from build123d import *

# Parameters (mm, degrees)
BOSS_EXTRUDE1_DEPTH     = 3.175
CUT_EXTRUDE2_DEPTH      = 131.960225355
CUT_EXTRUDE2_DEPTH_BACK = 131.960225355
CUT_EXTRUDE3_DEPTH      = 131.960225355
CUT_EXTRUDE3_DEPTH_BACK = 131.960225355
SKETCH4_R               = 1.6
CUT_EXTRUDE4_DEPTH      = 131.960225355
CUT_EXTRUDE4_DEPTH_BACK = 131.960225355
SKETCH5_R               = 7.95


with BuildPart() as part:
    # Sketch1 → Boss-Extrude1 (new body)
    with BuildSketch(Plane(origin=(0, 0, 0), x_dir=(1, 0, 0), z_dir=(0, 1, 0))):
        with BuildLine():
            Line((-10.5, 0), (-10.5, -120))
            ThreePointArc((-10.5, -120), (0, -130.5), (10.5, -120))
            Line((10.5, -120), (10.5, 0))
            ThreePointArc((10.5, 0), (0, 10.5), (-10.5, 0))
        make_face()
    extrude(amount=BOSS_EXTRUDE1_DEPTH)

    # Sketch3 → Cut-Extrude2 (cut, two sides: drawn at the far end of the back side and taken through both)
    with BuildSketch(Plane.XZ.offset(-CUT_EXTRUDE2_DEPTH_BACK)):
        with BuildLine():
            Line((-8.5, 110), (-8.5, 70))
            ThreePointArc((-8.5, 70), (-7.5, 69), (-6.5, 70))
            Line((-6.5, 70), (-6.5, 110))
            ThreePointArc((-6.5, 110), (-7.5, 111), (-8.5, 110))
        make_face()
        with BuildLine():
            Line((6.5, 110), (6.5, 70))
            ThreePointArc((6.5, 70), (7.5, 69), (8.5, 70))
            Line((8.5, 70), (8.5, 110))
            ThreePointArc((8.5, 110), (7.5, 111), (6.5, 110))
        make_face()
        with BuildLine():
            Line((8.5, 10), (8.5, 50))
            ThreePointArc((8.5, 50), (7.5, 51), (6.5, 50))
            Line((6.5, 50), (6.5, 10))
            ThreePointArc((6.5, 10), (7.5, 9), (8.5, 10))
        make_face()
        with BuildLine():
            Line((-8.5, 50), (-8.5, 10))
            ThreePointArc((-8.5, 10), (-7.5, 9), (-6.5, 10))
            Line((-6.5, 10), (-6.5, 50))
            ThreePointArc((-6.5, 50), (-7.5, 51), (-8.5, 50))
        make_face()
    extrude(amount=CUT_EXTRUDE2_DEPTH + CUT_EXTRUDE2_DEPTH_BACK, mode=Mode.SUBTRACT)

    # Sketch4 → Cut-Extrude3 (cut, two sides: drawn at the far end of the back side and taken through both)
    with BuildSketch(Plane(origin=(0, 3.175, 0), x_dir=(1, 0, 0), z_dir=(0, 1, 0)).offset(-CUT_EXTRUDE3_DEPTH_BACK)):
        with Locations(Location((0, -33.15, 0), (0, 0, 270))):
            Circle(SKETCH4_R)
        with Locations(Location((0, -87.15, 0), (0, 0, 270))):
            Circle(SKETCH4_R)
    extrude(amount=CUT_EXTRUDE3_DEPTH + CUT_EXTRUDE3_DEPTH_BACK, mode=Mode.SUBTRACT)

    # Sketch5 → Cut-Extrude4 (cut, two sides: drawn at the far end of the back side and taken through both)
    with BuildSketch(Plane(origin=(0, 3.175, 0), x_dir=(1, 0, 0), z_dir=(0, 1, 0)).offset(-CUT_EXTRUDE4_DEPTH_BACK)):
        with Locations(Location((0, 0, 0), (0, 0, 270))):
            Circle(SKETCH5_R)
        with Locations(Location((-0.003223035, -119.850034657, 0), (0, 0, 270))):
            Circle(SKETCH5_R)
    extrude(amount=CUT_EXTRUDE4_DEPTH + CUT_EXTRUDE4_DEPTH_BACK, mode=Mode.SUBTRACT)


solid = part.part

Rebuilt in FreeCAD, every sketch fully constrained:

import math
import FreeCAD as App
import Part
import Sketcher
from FreeCAD import Vector

doc = App.newDocument("Part")
body = doc.addObject("PartDesign::Body", "Body")

sketch1 = body.newObject("Sketcher::SketchObject", "Sketch")
sketch1.AttachmentSupport = (doc.getObject("XZ_Plane"), [""])
sketch1.MapMode = "FlatFace"
sketch1.addGeometry(Part.LineSegment(Vector(-10, 0, 0), Vector(-10, 120, 0)), False)
sketch1.addGeometry(Part.ArcOfCircle(Part.Circle(Vector(0, 120, 0), Vector(0, 0, 1), 10), math.radians(0), math.radians(180)), False)
sketch1.addGeometry(Part.LineSegment(Vector(10, 120, 0), Vector(10, 0, 0)), False)
sketch1.addGeometry(Part.ArcOfCircle(Part.Circle(Vector(0, 0, 0), Vector(0, 0, 1), 10), math.radians(180), math.radians(360)), False)
sketch1.addConstraint(Sketcher.Constraint("Tangent", 0, 2, 1, 2))
sketch1.addConstraint(Sketcher.Constraint("Tangent", 1, 1, 2, 1))
sketch1.addConstraint(Sketcher.Constraint("Tangent", 2, 2, 3, 2))
sketch1.addConstraint(Sketcher.Constraint("Tangent", 3, 1, 0, 1))
sketch1.addConstraint(Sketcher.Constraint("Vertical", 0))
sketch1.addConstraint(Sketcher.Constraint("Vertical", 2))
sketch1.addConstraint(Sketcher.Constraint("Coincident", 3, 3, -1, 1))
sketch1.addConstraint(Sketcher.Constraint("Radius", 1, 10.5))
sketch1.addConstraint(Sketcher.Constraint("DistanceY", 0, 1, 0, 2, 120.0))
pad1 = body.newObject("PartDesign::Pad", "Pad")
pad1.Profile = sketch1
pad1.Length = 3.175
pad1.Reversed = True

sketch2 = body.newObject("Sketcher::SketchObject", "Sketch001")
sketch2.AttachmentSupport = (doc.getObject("XZ_Plane"), [""])
sketch2.MapMode = "FlatFace"
sketch2.addGeometry(Part.LineSegment(Vector(-8.5, 110, 0), Vector(-8.5, 70, 0)), False)
sketch2.addGeometry(Part.ArcOfCircle(Part.Circle(Vector(-7.5, 70, 0), Vector(0, 0, 1), 1), math.radians(180), math.radians(360)), False)
sketch2.addGeometry(Part.LineSegment(Vector(-6.5, 70, 0), Vector(-6.5, 110, 0)), False)
sketch2.addGeometry(Part.ArcOfCircle(Part.Circle(Vector(-7.5, 110, 0), Vector(0, 0, 1), 1), math.radians(0), math.radians(180)), False)
sketch2.addGeometry(Part.LineSegment(Vector(6.5, 110, 0), Vector(6.5, 70, 0)), False)
sketch2.addGeometry(Part.ArcOfCircle(Part.Circle(Vector(7.5, 70, 0), Vector(0, 0, 1), 1), math.radians(180), math.radians(360)), False)
sketch2.addGeometry(Part.LineSegment(Vector(8.5, 70, 0), Vector(8.5, 110, 0)), False)
sketch2.addGeometry(Part.ArcOfCircle(Part.Circle(Vector(7.5, 110, 0), Vector(0, 0, 1), 1), math.radians(0), math.radians(180)), False)
sketch2.addGeometry(Part.LineSegment(Vector(8.5, 10, 0), Vector(8.5, 50, 0)), False)
sketch2.addGeometry(Part.ArcOfCircle(Part.Circle(Vector(7.5, 50, 0), Vector(0, 0, 1), 1), math.radians(0), math.radians(180)), False)
sketch2.addGeometry(Part.LineSegment(Vector(6.5, 50, 0), Vector(6.5, 10, 0)), False)
sketch2.addGeometry(Part.ArcOfCircle(Part.Circle(Vector(7.5, 10, 0), Vector(0, 0, 1), 1), math.radians(180), math.radians(360)), False)
sketch2.addGeometry(Part.LineSegment(Vector(-8.5, 50, 0), Vector(-8.5, 10, 0)), False)
sketch2.addGeometry(Part.ArcOfCircle(Part.Circle(Vector(-7.5, 10, 0), Vector(0, 0, 1), 1), math.radians(180), math.radians(360)), False)
sketch2.addGeometry(Part.LineSegment(Vector(-6.5, 10, 0), Vector(-6.5, 50, 0)), False)
sketch2.addGeometry(Part.ArcOfCircle(Part.Circle(Vector(-7.5, 50, 0), Vector(0, 0, 1), 1), math.radians(0), math.radians(180)), False)
sketch2.addConstraint(Sketcher.Constraint("Tangent", 0, 2, 1, 1))
sketch2.addConstraint(Sketcher.Constraint("Tangent", 1, 2, 2, 1))
sketch2.addConstraint(Sketcher.Constraint("Tangent", 2, 2, 3, 1))
sketch2.addConstraint(Sketcher.Constraint("Tangent", 3, 2, 0, 1))
sketch2.addConstraint(Sketcher.Constraint("Tangent", 4, 2, 5, 1))
sketch2.addConstraint(Sketcher.Constraint("Tangent", 5, 2, 6, 1))
sketch2.addConstraint(Sketcher.Constraint("Tangent", 6, 2, 7, 1))
sketch2.addConstraint(Sketcher.Constraint("Tangent", 7, 2, 4, 1))
sketch2.addConstraint(Sketcher.Constraint("Tangent", 8, 2, 9, 1))
sketch2.addConstraint(Sketcher.Constraint("Tangent", 9, 2, 10, 1))
sketch2.addConstraint(Sketcher.Constraint("Tangent", 10, 2, 11, 1))
sketch2.addConstraint(Sketcher.Constraint("Tangent", 11, 2, 8, 1))
sketch2.addConstraint(Sketcher.Constraint("Tangent", 12, 2, 13, 1))
sketch2.addConstraint(Sketcher.Constraint("Tangent", 13, 2, 14, 1))
sketch2.addConstraint(Sketcher.Constraint("Tangent", 14, 2, 15, 1))
sketch2.addConstraint(Sketcher.Constraint("Tangent", 15, 2, 12, 1))
sketch2.addConstraint(Sketcher.Constraint("Vertical", 0))
sketch2.addConstraint(Sketcher.Constraint("Vertical", 2))
sketch2.addConstraint(Sketcher.Constraint("Vertical", 4))
sketch2.addConstraint(Sketcher.Constraint("Vertical", 6))
sketch2.addConstraint(Sketcher.Constraint("Vertical", 8))
sketch2.addConstraint(Sketcher.Constraint("Vertical", 10))
sketch2.addConstraint(Sketcher.Constraint("Vertical", 12))
sketch2.addConstraint(Sketcher.Constraint("Vertical", 14))
sketch2.addConstraint(Sketcher.Constraint("Equal", 3, 5))
sketch2.addConstraint(Sketcher.Constraint("Equal", 7, 9))
sketch2.addConstraint(Sketcher.Constraint("Equal", 11, 13))
sketch2.addConstraint(Sketcher.Constraint("Symmetric", 1, 3, 5, 3, -2))
sketch2.addConstraint(Sketcher.Constraint("Symmetric", 11, 3, 13, 3, -2))
sketch2.addConstraint(Sketcher.Constraint("Horizontal", 3, 3, 7, 3))
sketch2.addConstraint(Sketcher.Constraint("Horizontal", 9, 3, 15, 3))
sketch2.addConstraint(Sketcher.Constraint("Vertical", 7, 3, 9, 3))
sketch2.addConstraint(Sketcher.Constraint("Equal", 6, 8))
sketch2.addConstraint(Sketcher.Constraint("Radius", 1, 1.0))
sketch2.addConstraint(Sketcher.Constraint("DistanceY", 0, 2, 0, 1, 40.0))
sketch2.addConstraint(Sketcher.Constraint("DistanceY", -1, 1, 1, 3, 70.0))
sketch2.addConstraint(Sketcher.Constraint("DistanceY", -1, 1, 9, 3, 50.0))
sketch2.addConstraint(Sketcher.Constraint("DistanceX", 1, 3, 5, 3, 15.0))
pocket1 = body.newObject("PartDesign::Pocket", "Pocket")
pocket1.Profile = sketch2
pocket1.Type = "ThroughAll"
pocket1.Midplane = True

sketch3 = body.newObject("Sketcher::SketchObject", "Sketch002")
sketch3.AttachmentSupport = (doc.getObject("XZ_Plane"), [""])
sketch3.MapMode = "FlatFace"
sketch3.AttachmentOffset = App.Placement(Vector(0, 0, -3.175), App.Rotation())
sketch3.addGeometry(Part.Circle(Vector(0, 33.1, 0), Vector(0, 0, 1), 1.6), False)
sketch3.addGeometry(Part.Circle(Vector(0, 87.2, 0), Vector(0, 0, 1), 1.6), False)
sketch3.addConstraint(Sketcher.Constraint("Equal", 0, 1))
sketch3.addConstraint(Sketcher.Constraint("PointOnObject", 0, 3, -2))
sketch3.addConstraint(Sketcher.Constraint("PointOnObject", 1, 3, -2))
sketch3.addConstraint(Sketcher.Constraint("Diameter", 0, 3.2))
sketch3.addConstraint(Sketcher.Constraint("DistanceY", 0, 3, 1, 3, 54.0))
sketch3.addConstraint(Sketcher.Constraint("DistanceY", -1, 1, 0, 3, 33.15))
pocket2 = body.newObject("PartDesign::Pocket", "Pocket001")
pocket2.Profile = sketch3
pocket2.Type = "ThroughAll"
pocket2.Midplane = True

sketch4 = body.newObject("Sketcher::SketchObject", "Sketch003")
sketch4.AttachmentSupport = (doc.getObject("XZ_Plane"), [""])
sketch4.MapMode = "FlatFace"
sketch4.AttachmentOffset = App.Placement(Vector(0, 0, -3.175), App.Rotation())
sketch4.addGeometry(Part.Circle(Vector(0, 0, 0), Vector(0, 0, 1), 8), False)
sketch4.addGeometry(Part.Circle(Vector(0, 120, 0), Vector(0, 0, 1), 8), False)
sketch4.addConstraint(Sketcher.Constraint("Coincident", 0, 3, -1, 1))
sketch4.addConstraint(Sketcher.Constraint("Equal", 0, 1))
sketch4.addConstraint(Sketcher.Constraint("Diameter", 0, 15.9))
sketch4.addConstraint(Sketcher.Constraint("DistanceX", 1, 3, -1, 1, 0.003223))
sketch4.addConstraint(Sketcher.Constraint("DistanceY", -1, 1, 1, 3, 119.850035))
pocket3 = body.newObject("PartDesign::Pocket", "Pocket002")
pocket3.Profile = sketch4
pocket3.Type = "ThroughAll"
pocket3.Midplane = True

doc.recompute()
